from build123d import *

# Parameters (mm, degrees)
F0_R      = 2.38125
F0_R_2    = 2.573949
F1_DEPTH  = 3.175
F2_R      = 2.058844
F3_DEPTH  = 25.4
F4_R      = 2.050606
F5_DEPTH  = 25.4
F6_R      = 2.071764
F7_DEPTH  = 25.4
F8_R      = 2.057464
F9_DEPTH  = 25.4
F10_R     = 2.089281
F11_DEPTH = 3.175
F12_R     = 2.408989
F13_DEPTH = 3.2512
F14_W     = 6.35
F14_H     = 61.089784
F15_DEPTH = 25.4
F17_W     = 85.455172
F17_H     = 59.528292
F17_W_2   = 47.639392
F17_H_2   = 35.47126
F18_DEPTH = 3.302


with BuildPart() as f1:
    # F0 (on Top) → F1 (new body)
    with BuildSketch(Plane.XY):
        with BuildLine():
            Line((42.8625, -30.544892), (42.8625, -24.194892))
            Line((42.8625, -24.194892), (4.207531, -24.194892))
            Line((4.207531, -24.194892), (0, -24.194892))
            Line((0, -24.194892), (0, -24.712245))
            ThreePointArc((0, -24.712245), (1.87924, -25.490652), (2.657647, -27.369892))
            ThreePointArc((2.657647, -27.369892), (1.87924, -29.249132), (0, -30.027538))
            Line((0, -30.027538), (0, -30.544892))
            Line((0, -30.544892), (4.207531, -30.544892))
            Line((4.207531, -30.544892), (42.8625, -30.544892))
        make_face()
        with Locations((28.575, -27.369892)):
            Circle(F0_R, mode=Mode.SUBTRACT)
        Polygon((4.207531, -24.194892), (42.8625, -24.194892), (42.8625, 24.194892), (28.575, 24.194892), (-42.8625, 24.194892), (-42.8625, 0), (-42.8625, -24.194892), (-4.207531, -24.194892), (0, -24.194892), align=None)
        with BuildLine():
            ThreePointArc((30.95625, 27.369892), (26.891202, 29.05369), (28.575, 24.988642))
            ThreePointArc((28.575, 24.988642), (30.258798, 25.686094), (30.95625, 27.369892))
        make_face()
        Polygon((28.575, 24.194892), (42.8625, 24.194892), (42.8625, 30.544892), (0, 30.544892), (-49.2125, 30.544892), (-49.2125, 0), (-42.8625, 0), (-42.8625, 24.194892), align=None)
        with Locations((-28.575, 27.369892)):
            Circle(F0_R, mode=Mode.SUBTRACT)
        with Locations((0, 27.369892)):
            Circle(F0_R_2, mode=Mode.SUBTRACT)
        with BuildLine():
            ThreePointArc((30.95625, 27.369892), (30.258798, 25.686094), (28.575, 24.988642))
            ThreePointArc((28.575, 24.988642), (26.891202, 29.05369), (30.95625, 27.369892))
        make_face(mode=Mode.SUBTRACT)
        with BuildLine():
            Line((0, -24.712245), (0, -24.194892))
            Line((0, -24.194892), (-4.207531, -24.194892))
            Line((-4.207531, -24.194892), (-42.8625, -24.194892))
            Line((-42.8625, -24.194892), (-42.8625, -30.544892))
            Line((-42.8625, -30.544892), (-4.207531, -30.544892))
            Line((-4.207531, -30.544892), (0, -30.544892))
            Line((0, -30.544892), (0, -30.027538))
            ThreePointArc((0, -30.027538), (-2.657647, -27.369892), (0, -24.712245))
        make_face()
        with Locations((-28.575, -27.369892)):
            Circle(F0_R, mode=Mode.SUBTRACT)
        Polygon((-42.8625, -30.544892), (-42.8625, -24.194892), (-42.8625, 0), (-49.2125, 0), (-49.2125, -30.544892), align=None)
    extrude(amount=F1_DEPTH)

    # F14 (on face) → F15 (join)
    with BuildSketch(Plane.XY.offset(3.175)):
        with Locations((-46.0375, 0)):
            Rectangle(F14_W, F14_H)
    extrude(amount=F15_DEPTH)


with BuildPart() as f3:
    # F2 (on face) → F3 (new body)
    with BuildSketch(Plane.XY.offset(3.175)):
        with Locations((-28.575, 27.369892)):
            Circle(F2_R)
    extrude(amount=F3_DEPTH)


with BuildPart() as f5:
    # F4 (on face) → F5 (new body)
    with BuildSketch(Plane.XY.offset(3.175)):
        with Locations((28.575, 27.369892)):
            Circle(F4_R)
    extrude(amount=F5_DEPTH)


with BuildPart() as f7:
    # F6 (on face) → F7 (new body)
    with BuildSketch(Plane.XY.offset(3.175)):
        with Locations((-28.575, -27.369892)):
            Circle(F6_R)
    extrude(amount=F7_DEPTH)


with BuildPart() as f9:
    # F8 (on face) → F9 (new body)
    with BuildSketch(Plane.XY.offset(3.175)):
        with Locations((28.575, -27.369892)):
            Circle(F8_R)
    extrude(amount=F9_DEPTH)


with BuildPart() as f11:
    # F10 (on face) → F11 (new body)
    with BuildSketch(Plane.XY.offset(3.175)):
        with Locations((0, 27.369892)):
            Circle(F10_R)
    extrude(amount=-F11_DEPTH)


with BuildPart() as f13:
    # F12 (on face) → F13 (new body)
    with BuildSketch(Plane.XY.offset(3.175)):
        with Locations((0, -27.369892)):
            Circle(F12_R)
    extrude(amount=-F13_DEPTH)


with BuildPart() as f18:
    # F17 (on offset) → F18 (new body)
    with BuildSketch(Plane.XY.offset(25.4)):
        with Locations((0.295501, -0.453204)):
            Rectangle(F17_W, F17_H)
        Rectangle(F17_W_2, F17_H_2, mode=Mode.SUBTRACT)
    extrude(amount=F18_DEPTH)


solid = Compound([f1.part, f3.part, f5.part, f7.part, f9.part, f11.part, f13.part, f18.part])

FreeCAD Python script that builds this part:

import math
import FreeCAD as App
import Part
import Sketcher
Q = App.Units.Quantity

doc = App.newDocument("Part")
body = doc.addObject("PartDesign::Body", "Body")

# Sketch on XY plane
sketch1 = body.newObject("Sketcher::SketchObject", "Sketch")
sketch1.AttachmentSupport = (doc.getObject("XY_Plane"), [""])
sketch1.MapMode = "FlatFace"
sketch1.addGeometry([
    Part.LineSegment(App.Vector(42.9, -30.5, 0), App.Vector(42.9, 30.5, 0)),  # 0
    Part.LineSegment(App.Vector(42.9, 30.5, 0), App.Vector(-49.2, 30.5, 0)),  # 1
    Part.LineSegment(App.Vector(-49.2, 30.5, 0), App.Vector(-49.2, -30.5, 0)),  # 2
    Part.LineSegment(App.Vector(-49.2, -30.5, 0), App.Vector(42.9, -30.5, 0)),  # 3
    Part.Circle(App.Vector(-28.6, -27.4, 0), App.Vector(0, 0, 1), 2.4),  # 4
    Part.ArcOfCircle(Part.Circle(App.Vector(0, -27.4, 0), App.Vector(0, 0, 1), 2.7), math.radians(-90), math.radians(0)),  # 5
    Part.ArcOfCircle(Part.Circle(App.Vector(0, -27.4, 0), App.Vector(0, 0, 1), 2.7), math.radians(90), math.radians(270)),  # 6
    Part.ArcOfCircle(Part.Circle(App.Vector(0, -27.4, 0), App.Vector(0, 0, 1), 2.7), math.radians(0), math.radians(90)),  # 7
    Part.Circle(App.Vector(28.6, -27.4, 0), App.Vector(0, 0, 1), 2.4),  # 8
    Part.Circle(App.Vector(-28.6, 27.4, 0), App.Vector(0, 0, 1), 2.4),  # 9
    Part.Circle(App.Vector(0, 27.4, 0), App.Vector(0, 0, 1), 2.6),  # 10
    Part.ArcOfCircle(Part.Circle(App.Vector(28.6, 27.4, 0), App.Vector(0, 0, 1), 2.4), math.radians(0), math.radians(270)),  # 11
    Part.ArcOfCircle(Part.Circle(App.Vector(28.6, 27.4, 0), App.Vector(0, 0, 1), 2.4), math.radians(-90), math.radians(0)),  # 12
], False)
sketch1.addConstraint([
    Sketcher.Constraint("Coincident", 0, 2, 1, 1),
    Sketcher.Constraint("Coincident", 1, 2, 2, 1),
    Sketcher.Constraint("Coincident", 2, 2, 3, 1),
    Sketcher.Constraint("Coincident", 3, 2, 0, 1),
    Sketcher.Constraint("Tangent", 5, 1, 6, 2),
    Sketcher.Constraint("Tangent", 6, 1, 7, 2),
    Sketcher.Constraint("Tangent", 7, 1, 5, 2),
    Sketcher.Constraint("Tangent", 11, 1, 12, 2),
    Sketcher.Constraint("Coincident", 12, 1, 11, 2),
    Sketcher.Constraint("Vertical", 0),
    Sketcher.Constraint("Horizontal", 1),
    Sketcher.Constraint("Vertical", 2),
    Sketcher.Constraint("Horizontal", 3),
    Sketcher.Constraint("Equal", 4, 8),
    Sketcher.Constraint("Equal", 8, 9),
    Sketcher.Constraint("Equal", 9, 11),
    Sketcher.Constraint("Symmetric", 8, 3, 9, 3, -1, 1),
    Sketcher.Constraint("Symmetric", 5, 3, 10, 3, -1, 1),
    Sketcher.Constraint("Symmetric", 4, 3, 11, 3, -1, 1),
    Sketcher.Constraint("Symmetric", 4, 3, 8, 3, -2),
    Sketcher.Constraint("PointOnObject", 5, 3, -2),
    Sketcher.Constraint("PointOnObject", 5, 1, -2),
    Sketcher.Constraint("PointOnObject", 6, 1, -2),
    Sketcher.Constraint("Horizontal", 4, 3, 5, 3),
    Sketcher.Constraint("Horizontal", 8, 3, 7, 1),
    Sketcher.Constraint("Horizontal", 12, 3, 11, 1),
    Sketcher.Constraint("Vertical", 11, 3, 12, 1),
    Sketcher.Constraint("Diameter", 4, Q("0.1875 in")),
    Sketcher.Constraint("DistanceX", 1, 2, 1, 1, Q("3.625 in")),
    Sketcher.Constraint("DistanceX", 4, 3, 8, 3, Q("2.25 in")),
    Sketcher.Constraint("DistanceX", -1, 1, 0, 2, Q("1.6875 in")),
    Sketcher.Constraint("DistanceY", 11, 3, 0, 2, Q("0.125 in")),
    Sketcher.Constraint("DistanceY", 2, 2, 4, 3, Q("0.125 in")),
    Sketcher.Constraint("Diameter", 10, 5.147898),
    Sketcher.Constraint("Radius", 5, 2.657646),
    Sketcher.Constraint("DistanceY", 0, 1, 0, 2, 61.089784),
])
pad1 = body.newObject("PartDesign::Pad", "Pad")
pad1.Profile = sketch1
pad1.Length = Q("0.125 in")

# Sketch on XY plane
sketch2 = body.newObject("Sketcher::SketchObject", "Sketch001")
sketch2.AttachmentSupport = (doc.getObject("XY_Plane"), [""])
sketch2.MapMode = "FlatFace"
sketch2.AttachmentOffset = App.Placement(App.Vector(0, 0, 0.125 * 25.4), App.Rotation())
sketch2.addGeometry([
    Part.LineSegment(App.Vector(-49, 31, 0), App.Vector(-49, -31, 0)),
    Part.LineSegment(App.Vector(-49, -31, 0), App.Vector(-43, -31, 0)),
    Part.LineSegment(App.Vector(-43, -31, 0), App.Vector(-43, 31, 0)),
    Part.LineSegment(App.Vector(-43, 31, 0), App.Vector(-49, 31, 0)),
], False)
sketch2.addConstraint([
    Sketcher.Constraint("Coincident", 0, 2, 1, 1),
    Sketcher.Constraint("Coincident", 1, 2, 2, 1),
    Sketcher.Constraint("Coincident", 2, 2, 3, 1),
    Sketcher.Constraint("Coincident", 3, 2, 0, 1),
    Sketcher.Constraint("Vertical", 0),
    Sketcher.Constraint("Horizontal", 1),
    Sketcher.Constraint("Vertical", 2),
    Sketcher.Constraint("Horizontal", 3),
    Sketcher.Constraint("DistanceX", 1, 1, 1, 2, Q("0.25 in")),
    Sketcher.Constraint("DistanceX", 0, 2, -1, 1, Q("1.9375 in")),
    Sketcher.Constraint("DistanceY", 0, 2, 0, 1, 61.089784),
    Sketcher.Constraint("DistanceY", 0, 2, -1, 1, 30.544892),
])
pad2 = body.newObject("PartDesign::Pad", "Pad001")
pad2.Profile = sketch2
pad2.Length = Q("1 in")
body2 = doc.addObject("PartDesign::Body", "Body001")

# Sketch on XY plane
sketch3 = body2.newObject("Sketcher::SketchObject", "Sketch002")
sketch3.AttachmentSupport = (doc.getObject("XY_Plane001"), [""])
sketch3.MapMode = "FlatFace"
sketch3.AttachmentOffset = App.Placement(App.Vector(0, 0, 0.125 * 25.4), App.Rotation())
sketch3.addGeometry(Part.Circle(App.Vector(-28.6, 27.4, 0), App.Vector(0, 0, 1), 2.1), False)
sketch3.addConstraint([
    Sketcher.Constraint("Diameter", 0, 4.117688),
    Sketcher.Constraint("DistanceX", 0, 3, -1, 1, Q("1.125 in")),
    Sketcher.Constraint("DistanceY", -1, 1, 0, 3, 27.369892),
])
pad3 = body2.newObject("PartDesign::Pad", "Pad002")
pad3.Profile = sketch3
pad3.Length = Q("1 in")
body3 = doc.addObject("PartDesign::Body", "Body002")

# Sketch on XY plane
sketch4 = body3.newObject("Sketcher::SketchObject", "Sketch003")
sketch4.AttachmentSupport = (doc.getObject("XY_Plane002"), [""])
sketch4.MapMode = "FlatFace"
sketch4.AttachmentOffset = App.Placement(App.Vector(0, 0, 0.125 * 25.4), App.Rotation())
sketch4.addGeometry(Part.Circle(App.Vector(28.6, 27.4, 0), App.Vector(0, 0, 1), 2.1), False)
sketch4.addConstraint([
    Sketcher.Constraint("DistanceX", -1, 1, 0, 3, Q("1.125 in")),
    Sketcher.Constraint("Diameter", 0, 4.101212),
    Sketcher.Constraint("DistanceY", -1, 1, 0, 3, 27.369892),
])
pad4 = body3.newObject("PartDesign::Pad", "Pad003")
pad4.Profile = sketch4
pad4.Length = Q("1 in")
body4 = doc.addObject("PartDesign::Body", "Body003")

# Sketch on XY plane
sketch5 = body4.newObject("Sketcher::SketchObject", "Sketch004")
sketch5.AttachmentSupport = (doc.getObject("XY_Plane003"), [""])
sketch5.MapMode = "FlatFace"
sketch5.AttachmentOffset = App.Placement(App.Vector(0, 0, 0.125 * 25.4), App.Rotation())
sketch5.addGeometry(Part.Circle(App.Vector(-28.6, -27.4, 0), App.Vector(0, 0, 1), 2.1), False)
sketch5.addConstraint([
    Sketcher.Constraint("DistanceX", 0, 3, -1, 1, Q("1.125 in")),
    Sketcher.Constraint("Diameter", 0, 4.143528),
    Sketcher.Constraint("DistanceY", 0, 3, -1, 1, 27.369892),
])
pad5 = body4.newObject("PartDesign::Pad", "Pad004")
pad5.Profile = sketch5
pad5.Length = Q("1 in")
body5 = doc.addObject("PartDesign::Body", "Body004")

# Sketch on XY plane
sketch6 = body5.newObject("Sketcher::SketchObject", "Sketch005")
sketch6.AttachmentSupport = (doc.getObject("XY_Plane004"), [""])
sketch6.MapMode = "FlatFace"
sketch6.AttachmentOffset = App.Placement(App.Vector(0, 0, 0.125 * 25.4), App.Rotation())
sketch6.addGeometry(Part.Circle(App.Vector(28.6, -27.4, 0), App.Vector(0, 0, 1), 2.1), False)
sketch6.addConstraint([
    Sketcher.Constraint("DistanceX", -1, 1, 0, 3, Q("1.125 in")),
    Sketcher.Constraint("Diameter", 0, 4.114928),
    Sketcher.Constraint("DistanceY", 0, 3, -1, 1, 27.369892),
])
pad6 = body5.newObject("PartDesign::Pad", "Pad005")
pad6.Profile = sketch6
pad6.Length = Q("1 in")
body6 = doc.addObject("PartDesign::Body", "Body005")

# Sketch on XY plane
sketch7 = body6.newObject("Sketcher::SketchObject", "Sketch006")
sketch7.AttachmentSupport = (doc.getObject("XY_Plane005"), [""])
sketch7.MapMode = "FlatFace"
sketch7.AttachmentOffset = App.Placement(App.Vector(0, 0, 0.125 * 25.4), App.Rotation())
sketch7.addGeometry(Part.Circle(App.Vector(0, 27.4, 0), App.Vector(0, 0, 1), 2.1), False)
sketch7.addConstraint([
    Sketcher.Constraint("PointOnObject", 0, 3, -2),
    Sketcher.Constraint("Diameter", 0, 4.178562),
    Sketcher.Constraint("DistanceY", -1, 1, 0, 3, 27.369892),
])
pad7 = body6.newObject("PartDesign::Pad", "Pad006")
pad7.Profile = sketch7
pad7.Length = Q("0.125 in")
pad7.Reversed = True
body7 = doc.addObject("PartDesign::Body", "Body006")

# Sketch on XY plane
sketch8 = body7.newObject("Sketcher::SketchObject", "Sketch007")
sketch8.AttachmentSupport = (doc.getObject("XY_Plane006"), [""])
sketch8.MapMode = "FlatFace"
sketch8.AttachmentOffset = App.Placement(App.Vector(0, 0, 0.125 * 25.4), App.Rotation())
sketch8.addGeometry(Part.Circle(App.Vector(0, -27.4, 0), App.Vector(0, 0, 1), 2.4), False)
sketch8.addConstraint([
    Sketcher.Constraint("PointOnObject", 0, 3, -2),
    Sketcher.Constraint("Diameter", 0, 4.817978),
    Sketcher.Constraint("DistanceY", 0, 3, -1, 1, 27.369892),
])
pad8 = body7.newObject("PartDesign::Pad", "Pad007")
pad8.Profile = sketch8
pad8.Length = Q("0.128 in")
pad8.Reversed = True
body8 = doc.addObject("PartDesign::Body", "Body007")

# Sketch on XY plane
sketch9 = body8.newObject("Sketcher::SketchObject", "Sketch008")
sketch9.AttachmentSupport = (doc.getObject("XY_Plane007"), [""])
sketch9.MapMode = "FlatFace"
sketch9.AttachmentOffset = App.Placement(App.Vector(0, 0, 1 * 25.4), App.Rotation())
sketch9.addGeometry([
    Part.LineSegment(App.Vector(-42, 29, 0), App.Vector(-42, -30, 0)),  # 0
    Part.LineSegment(App.Vector(-42, -30, 0), App.Vector(43, -30, 0)),  # 1
    Part.LineSegment(App.Vector(43, -30, 0), App.Vector(43, 29, 0)),  # 2
    Part.LineSegment(App.Vector(43, 29, 0), App.Vector(-42, 29, 0)),  # 3
    Part.LineSegment(App.Vector(24, -18, 0), App.Vector(-24, -18, 0)),  # 4
    Part.LineSegment(App.Vector(-24, -18, 0), App.Vector(-24, 18, 0)),  # 5
    Part.LineSegment(App.Vector(-24, 18, 0), App.Vector(24, 18, 0)),  # 6
    Part.LineSegment(App.Vector(24, 18, 0), App.Vector(24, -18, 0)),  # 7
], False)
sketch9.addConstraint([
    Sketcher.Constraint("Coincident", 0, 2, 1, 1),
    Sketcher.Constraint("Coincident", 1, 2, 2, 1),
    Sketcher.Constraint("Coincident", 2, 2, 3, 1),
    Sketcher.Constraint("Coincident", 3, 2, 0, 1),
    Sketcher.Constraint("Coincident", 4, 2, 5, 1),
    Sketcher.Constraint("Coincident", 5, 2, 6, 1),
    Sketcher.Constraint("Coincident", 6, 2, 7, 1),
    Sketcher.Constraint("Coincident", 7, 2, 4, 1),
    Sketcher.Constraint("Vertical", 0),
    Sketcher.Constraint("Horizontal", 1),
    Sketcher.Constraint("Vertical", 2),
    Sketcher.Constraint("Horizontal", 3),
    Sketcher.Constraint("Horizontal", 4),
    Sketcher.Constraint("Vertical", 5),
    Sketcher.Constraint("Horizontal", 6),
    Sketcher.Constraint("Vertical", 7),
    Sketcher.Constraint("Symmetric", 4, 2, 6, 2, -1, 1),
    Sketcher.Constraint("DistanceY", 5, 1, 5, 2, 35.47126),
    Sketcher.Constraint("DistanceX", 1, 1, 1, 2, 85.455172),
    Sketcher.Constraint("DistanceX", 4, 2, 4, 1, 47.639392),
    Sketcher.Constraint("DistanceY", 0, 2, 0, 1, 59.528292),
    Sketcher.Constraint("DistanceY", 0, 2, -1, 1, 30.21735),
    Sketcher.Constraint("DistanceX", 0, 2, 4, 2, 18.612389),
])
pad9 = body8.newObject("PartDesign::Pad", "Pad008")
pad9.Profile = sketch9
pad9.Length = Q("0.13 in")

doc.recompute()
